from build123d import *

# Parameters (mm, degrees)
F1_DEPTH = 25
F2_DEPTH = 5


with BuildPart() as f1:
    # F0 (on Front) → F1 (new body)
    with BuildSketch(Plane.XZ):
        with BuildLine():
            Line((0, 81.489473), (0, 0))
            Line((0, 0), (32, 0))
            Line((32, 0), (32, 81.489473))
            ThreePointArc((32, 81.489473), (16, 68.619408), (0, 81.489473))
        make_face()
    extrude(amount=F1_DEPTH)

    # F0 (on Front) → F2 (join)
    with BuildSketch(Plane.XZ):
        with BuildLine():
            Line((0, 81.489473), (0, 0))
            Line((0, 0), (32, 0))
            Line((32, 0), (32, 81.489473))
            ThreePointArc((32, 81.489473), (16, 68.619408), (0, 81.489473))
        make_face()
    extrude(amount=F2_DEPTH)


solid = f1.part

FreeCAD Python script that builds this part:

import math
import FreeCAD as App
import Part
import Sketcher
Q = App.Units.Quantity

doc = App.newDocument("Part")
body = doc.addObject("PartDesign::Body", "Body")

sketch1 = doc.addObject("Sketcher::SketchObject", "Sketch")
body.addObject(sketch1)
sketch1.AttachmentSupport = (doc.XZ_Plane, [""])
sketch1.MapMode = "FlatFace"
sketch1.addGeometry([
    Part.LineSegment(App.Vector(0, 81.489473, 0), App.Vector(0, 0, 0)),
    Part.LineSegment(App.Vector(0, 0, 0), App.Vector(32, 0, 0)),
    Part.LineSegment(App.Vector(32, 0, 0), App.Vector(32, 81.489473, 0)),
    Part.ArcOfCircle(Part.Circle(App.Vector(16, 85, 0), App.Vector(0, 0, 1), 16.380592), math.radians(-167.624941), math.radians(-12.375059)),
], False)
sketch1.addConstraint([
    Sketcher.Constraint("Coincident", 0, 2, 1, 1),
    Sketcher.Constraint("Coincident", 1, 2, 2, 1),
    Sketcher.Constraint("Coincident", 2, 2, 3, 2),
    Sketcher.Constraint("Coincident", 3, 1, 0, 1),
    Sketcher.Constraint("Vertical", 0),
    Sketcher.Constraint("Horizontal", 1),
    Sketcher.Constraint("Vertical", 2),
    Sketcher.Constraint("Coincident", 0, 2, -1, 1),
    Sketcher.Constraint("Horizontal", 2, 2, 3, 1),
    Sketcher.Constraint("DistanceX", 1, 1, 1, 2, Q("32 mm")),
    Sketcher.Constraint("DistanceY", -1, 1, 3, 3, Q("85 mm")),
    Sketcher.Constraint("Radius", 3, Q("16.380592 mm")),
])
pad1 = doc.addObject("PartDesign::Pad", "Pad")
body.addObject(pad1)
pad1.Profile = sketch1
pad1.Length = 25

sketch2 = doc.addObject("Sketcher::SketchObject", "Sketch001")
body.addObject(sketch2)
sketch2.AttachmentSupport = (doc.XZ_Plane, [""])
sketch2.MapMode = "FlatFace"
sketch2.addGeometry([
    Part.LineSegment(App.Vector(0, 81.489473, 0), App.Vector(0, 0, 0)),
    Part.LineSegment(App.Vector(0, 0, 0), App.Vector(32, 0, 0)),
    Part.LineSegment(App.Vector(32, 0, 0), App.Vector(32, 81.489473, 0)),
    Part.ArcOfCircle(Part.Circle(App.Vector(16, 85, 0), App.Vector(0, 0, 1), 16.380592), math.radians(-167.624941), math.radians(-12.375059)),
], False)
sketch2.addConstraint([
    Sketcher.Constraint("Coincident", 0, 2, 1, 1),
    Sketcher.Constraint("Coincident", 1, 2, 2, 1),
    Sketcher.Constraint("Coincident", 2, 2, 3, 2),
    Sketcher.Constraint("Coincident", 3, 1, 0, 1),
    Sketcher.Constraint("Vertical", 0),
    Sketcher.Constraint("Horizontal", 1),
    Sketcher.Constraint("Vertical", 2),
    Sketcher.Constraint("Coincident", 0, 2, -1, 1),
    Sketcher.Constraint("Horizontal", 2, 2, 3, 1),
    Sketcher.Constraint("DistanceX", 1, 1, 1, 2, Q("32 mm")),
    Sketcher.Constraint("DistanceY", -1, 1, 3, 3, Q("85 mm")),
    Sketcher.Constraint("Radius", 3, Q("16.380592 mm")),
])
pad2 = doc.addObject("PartDesign::Pad", "Pad001")
body.addObject(pad2)
pad2.Profile = sketch2
pad2.Length = 5

doc.recompute()
